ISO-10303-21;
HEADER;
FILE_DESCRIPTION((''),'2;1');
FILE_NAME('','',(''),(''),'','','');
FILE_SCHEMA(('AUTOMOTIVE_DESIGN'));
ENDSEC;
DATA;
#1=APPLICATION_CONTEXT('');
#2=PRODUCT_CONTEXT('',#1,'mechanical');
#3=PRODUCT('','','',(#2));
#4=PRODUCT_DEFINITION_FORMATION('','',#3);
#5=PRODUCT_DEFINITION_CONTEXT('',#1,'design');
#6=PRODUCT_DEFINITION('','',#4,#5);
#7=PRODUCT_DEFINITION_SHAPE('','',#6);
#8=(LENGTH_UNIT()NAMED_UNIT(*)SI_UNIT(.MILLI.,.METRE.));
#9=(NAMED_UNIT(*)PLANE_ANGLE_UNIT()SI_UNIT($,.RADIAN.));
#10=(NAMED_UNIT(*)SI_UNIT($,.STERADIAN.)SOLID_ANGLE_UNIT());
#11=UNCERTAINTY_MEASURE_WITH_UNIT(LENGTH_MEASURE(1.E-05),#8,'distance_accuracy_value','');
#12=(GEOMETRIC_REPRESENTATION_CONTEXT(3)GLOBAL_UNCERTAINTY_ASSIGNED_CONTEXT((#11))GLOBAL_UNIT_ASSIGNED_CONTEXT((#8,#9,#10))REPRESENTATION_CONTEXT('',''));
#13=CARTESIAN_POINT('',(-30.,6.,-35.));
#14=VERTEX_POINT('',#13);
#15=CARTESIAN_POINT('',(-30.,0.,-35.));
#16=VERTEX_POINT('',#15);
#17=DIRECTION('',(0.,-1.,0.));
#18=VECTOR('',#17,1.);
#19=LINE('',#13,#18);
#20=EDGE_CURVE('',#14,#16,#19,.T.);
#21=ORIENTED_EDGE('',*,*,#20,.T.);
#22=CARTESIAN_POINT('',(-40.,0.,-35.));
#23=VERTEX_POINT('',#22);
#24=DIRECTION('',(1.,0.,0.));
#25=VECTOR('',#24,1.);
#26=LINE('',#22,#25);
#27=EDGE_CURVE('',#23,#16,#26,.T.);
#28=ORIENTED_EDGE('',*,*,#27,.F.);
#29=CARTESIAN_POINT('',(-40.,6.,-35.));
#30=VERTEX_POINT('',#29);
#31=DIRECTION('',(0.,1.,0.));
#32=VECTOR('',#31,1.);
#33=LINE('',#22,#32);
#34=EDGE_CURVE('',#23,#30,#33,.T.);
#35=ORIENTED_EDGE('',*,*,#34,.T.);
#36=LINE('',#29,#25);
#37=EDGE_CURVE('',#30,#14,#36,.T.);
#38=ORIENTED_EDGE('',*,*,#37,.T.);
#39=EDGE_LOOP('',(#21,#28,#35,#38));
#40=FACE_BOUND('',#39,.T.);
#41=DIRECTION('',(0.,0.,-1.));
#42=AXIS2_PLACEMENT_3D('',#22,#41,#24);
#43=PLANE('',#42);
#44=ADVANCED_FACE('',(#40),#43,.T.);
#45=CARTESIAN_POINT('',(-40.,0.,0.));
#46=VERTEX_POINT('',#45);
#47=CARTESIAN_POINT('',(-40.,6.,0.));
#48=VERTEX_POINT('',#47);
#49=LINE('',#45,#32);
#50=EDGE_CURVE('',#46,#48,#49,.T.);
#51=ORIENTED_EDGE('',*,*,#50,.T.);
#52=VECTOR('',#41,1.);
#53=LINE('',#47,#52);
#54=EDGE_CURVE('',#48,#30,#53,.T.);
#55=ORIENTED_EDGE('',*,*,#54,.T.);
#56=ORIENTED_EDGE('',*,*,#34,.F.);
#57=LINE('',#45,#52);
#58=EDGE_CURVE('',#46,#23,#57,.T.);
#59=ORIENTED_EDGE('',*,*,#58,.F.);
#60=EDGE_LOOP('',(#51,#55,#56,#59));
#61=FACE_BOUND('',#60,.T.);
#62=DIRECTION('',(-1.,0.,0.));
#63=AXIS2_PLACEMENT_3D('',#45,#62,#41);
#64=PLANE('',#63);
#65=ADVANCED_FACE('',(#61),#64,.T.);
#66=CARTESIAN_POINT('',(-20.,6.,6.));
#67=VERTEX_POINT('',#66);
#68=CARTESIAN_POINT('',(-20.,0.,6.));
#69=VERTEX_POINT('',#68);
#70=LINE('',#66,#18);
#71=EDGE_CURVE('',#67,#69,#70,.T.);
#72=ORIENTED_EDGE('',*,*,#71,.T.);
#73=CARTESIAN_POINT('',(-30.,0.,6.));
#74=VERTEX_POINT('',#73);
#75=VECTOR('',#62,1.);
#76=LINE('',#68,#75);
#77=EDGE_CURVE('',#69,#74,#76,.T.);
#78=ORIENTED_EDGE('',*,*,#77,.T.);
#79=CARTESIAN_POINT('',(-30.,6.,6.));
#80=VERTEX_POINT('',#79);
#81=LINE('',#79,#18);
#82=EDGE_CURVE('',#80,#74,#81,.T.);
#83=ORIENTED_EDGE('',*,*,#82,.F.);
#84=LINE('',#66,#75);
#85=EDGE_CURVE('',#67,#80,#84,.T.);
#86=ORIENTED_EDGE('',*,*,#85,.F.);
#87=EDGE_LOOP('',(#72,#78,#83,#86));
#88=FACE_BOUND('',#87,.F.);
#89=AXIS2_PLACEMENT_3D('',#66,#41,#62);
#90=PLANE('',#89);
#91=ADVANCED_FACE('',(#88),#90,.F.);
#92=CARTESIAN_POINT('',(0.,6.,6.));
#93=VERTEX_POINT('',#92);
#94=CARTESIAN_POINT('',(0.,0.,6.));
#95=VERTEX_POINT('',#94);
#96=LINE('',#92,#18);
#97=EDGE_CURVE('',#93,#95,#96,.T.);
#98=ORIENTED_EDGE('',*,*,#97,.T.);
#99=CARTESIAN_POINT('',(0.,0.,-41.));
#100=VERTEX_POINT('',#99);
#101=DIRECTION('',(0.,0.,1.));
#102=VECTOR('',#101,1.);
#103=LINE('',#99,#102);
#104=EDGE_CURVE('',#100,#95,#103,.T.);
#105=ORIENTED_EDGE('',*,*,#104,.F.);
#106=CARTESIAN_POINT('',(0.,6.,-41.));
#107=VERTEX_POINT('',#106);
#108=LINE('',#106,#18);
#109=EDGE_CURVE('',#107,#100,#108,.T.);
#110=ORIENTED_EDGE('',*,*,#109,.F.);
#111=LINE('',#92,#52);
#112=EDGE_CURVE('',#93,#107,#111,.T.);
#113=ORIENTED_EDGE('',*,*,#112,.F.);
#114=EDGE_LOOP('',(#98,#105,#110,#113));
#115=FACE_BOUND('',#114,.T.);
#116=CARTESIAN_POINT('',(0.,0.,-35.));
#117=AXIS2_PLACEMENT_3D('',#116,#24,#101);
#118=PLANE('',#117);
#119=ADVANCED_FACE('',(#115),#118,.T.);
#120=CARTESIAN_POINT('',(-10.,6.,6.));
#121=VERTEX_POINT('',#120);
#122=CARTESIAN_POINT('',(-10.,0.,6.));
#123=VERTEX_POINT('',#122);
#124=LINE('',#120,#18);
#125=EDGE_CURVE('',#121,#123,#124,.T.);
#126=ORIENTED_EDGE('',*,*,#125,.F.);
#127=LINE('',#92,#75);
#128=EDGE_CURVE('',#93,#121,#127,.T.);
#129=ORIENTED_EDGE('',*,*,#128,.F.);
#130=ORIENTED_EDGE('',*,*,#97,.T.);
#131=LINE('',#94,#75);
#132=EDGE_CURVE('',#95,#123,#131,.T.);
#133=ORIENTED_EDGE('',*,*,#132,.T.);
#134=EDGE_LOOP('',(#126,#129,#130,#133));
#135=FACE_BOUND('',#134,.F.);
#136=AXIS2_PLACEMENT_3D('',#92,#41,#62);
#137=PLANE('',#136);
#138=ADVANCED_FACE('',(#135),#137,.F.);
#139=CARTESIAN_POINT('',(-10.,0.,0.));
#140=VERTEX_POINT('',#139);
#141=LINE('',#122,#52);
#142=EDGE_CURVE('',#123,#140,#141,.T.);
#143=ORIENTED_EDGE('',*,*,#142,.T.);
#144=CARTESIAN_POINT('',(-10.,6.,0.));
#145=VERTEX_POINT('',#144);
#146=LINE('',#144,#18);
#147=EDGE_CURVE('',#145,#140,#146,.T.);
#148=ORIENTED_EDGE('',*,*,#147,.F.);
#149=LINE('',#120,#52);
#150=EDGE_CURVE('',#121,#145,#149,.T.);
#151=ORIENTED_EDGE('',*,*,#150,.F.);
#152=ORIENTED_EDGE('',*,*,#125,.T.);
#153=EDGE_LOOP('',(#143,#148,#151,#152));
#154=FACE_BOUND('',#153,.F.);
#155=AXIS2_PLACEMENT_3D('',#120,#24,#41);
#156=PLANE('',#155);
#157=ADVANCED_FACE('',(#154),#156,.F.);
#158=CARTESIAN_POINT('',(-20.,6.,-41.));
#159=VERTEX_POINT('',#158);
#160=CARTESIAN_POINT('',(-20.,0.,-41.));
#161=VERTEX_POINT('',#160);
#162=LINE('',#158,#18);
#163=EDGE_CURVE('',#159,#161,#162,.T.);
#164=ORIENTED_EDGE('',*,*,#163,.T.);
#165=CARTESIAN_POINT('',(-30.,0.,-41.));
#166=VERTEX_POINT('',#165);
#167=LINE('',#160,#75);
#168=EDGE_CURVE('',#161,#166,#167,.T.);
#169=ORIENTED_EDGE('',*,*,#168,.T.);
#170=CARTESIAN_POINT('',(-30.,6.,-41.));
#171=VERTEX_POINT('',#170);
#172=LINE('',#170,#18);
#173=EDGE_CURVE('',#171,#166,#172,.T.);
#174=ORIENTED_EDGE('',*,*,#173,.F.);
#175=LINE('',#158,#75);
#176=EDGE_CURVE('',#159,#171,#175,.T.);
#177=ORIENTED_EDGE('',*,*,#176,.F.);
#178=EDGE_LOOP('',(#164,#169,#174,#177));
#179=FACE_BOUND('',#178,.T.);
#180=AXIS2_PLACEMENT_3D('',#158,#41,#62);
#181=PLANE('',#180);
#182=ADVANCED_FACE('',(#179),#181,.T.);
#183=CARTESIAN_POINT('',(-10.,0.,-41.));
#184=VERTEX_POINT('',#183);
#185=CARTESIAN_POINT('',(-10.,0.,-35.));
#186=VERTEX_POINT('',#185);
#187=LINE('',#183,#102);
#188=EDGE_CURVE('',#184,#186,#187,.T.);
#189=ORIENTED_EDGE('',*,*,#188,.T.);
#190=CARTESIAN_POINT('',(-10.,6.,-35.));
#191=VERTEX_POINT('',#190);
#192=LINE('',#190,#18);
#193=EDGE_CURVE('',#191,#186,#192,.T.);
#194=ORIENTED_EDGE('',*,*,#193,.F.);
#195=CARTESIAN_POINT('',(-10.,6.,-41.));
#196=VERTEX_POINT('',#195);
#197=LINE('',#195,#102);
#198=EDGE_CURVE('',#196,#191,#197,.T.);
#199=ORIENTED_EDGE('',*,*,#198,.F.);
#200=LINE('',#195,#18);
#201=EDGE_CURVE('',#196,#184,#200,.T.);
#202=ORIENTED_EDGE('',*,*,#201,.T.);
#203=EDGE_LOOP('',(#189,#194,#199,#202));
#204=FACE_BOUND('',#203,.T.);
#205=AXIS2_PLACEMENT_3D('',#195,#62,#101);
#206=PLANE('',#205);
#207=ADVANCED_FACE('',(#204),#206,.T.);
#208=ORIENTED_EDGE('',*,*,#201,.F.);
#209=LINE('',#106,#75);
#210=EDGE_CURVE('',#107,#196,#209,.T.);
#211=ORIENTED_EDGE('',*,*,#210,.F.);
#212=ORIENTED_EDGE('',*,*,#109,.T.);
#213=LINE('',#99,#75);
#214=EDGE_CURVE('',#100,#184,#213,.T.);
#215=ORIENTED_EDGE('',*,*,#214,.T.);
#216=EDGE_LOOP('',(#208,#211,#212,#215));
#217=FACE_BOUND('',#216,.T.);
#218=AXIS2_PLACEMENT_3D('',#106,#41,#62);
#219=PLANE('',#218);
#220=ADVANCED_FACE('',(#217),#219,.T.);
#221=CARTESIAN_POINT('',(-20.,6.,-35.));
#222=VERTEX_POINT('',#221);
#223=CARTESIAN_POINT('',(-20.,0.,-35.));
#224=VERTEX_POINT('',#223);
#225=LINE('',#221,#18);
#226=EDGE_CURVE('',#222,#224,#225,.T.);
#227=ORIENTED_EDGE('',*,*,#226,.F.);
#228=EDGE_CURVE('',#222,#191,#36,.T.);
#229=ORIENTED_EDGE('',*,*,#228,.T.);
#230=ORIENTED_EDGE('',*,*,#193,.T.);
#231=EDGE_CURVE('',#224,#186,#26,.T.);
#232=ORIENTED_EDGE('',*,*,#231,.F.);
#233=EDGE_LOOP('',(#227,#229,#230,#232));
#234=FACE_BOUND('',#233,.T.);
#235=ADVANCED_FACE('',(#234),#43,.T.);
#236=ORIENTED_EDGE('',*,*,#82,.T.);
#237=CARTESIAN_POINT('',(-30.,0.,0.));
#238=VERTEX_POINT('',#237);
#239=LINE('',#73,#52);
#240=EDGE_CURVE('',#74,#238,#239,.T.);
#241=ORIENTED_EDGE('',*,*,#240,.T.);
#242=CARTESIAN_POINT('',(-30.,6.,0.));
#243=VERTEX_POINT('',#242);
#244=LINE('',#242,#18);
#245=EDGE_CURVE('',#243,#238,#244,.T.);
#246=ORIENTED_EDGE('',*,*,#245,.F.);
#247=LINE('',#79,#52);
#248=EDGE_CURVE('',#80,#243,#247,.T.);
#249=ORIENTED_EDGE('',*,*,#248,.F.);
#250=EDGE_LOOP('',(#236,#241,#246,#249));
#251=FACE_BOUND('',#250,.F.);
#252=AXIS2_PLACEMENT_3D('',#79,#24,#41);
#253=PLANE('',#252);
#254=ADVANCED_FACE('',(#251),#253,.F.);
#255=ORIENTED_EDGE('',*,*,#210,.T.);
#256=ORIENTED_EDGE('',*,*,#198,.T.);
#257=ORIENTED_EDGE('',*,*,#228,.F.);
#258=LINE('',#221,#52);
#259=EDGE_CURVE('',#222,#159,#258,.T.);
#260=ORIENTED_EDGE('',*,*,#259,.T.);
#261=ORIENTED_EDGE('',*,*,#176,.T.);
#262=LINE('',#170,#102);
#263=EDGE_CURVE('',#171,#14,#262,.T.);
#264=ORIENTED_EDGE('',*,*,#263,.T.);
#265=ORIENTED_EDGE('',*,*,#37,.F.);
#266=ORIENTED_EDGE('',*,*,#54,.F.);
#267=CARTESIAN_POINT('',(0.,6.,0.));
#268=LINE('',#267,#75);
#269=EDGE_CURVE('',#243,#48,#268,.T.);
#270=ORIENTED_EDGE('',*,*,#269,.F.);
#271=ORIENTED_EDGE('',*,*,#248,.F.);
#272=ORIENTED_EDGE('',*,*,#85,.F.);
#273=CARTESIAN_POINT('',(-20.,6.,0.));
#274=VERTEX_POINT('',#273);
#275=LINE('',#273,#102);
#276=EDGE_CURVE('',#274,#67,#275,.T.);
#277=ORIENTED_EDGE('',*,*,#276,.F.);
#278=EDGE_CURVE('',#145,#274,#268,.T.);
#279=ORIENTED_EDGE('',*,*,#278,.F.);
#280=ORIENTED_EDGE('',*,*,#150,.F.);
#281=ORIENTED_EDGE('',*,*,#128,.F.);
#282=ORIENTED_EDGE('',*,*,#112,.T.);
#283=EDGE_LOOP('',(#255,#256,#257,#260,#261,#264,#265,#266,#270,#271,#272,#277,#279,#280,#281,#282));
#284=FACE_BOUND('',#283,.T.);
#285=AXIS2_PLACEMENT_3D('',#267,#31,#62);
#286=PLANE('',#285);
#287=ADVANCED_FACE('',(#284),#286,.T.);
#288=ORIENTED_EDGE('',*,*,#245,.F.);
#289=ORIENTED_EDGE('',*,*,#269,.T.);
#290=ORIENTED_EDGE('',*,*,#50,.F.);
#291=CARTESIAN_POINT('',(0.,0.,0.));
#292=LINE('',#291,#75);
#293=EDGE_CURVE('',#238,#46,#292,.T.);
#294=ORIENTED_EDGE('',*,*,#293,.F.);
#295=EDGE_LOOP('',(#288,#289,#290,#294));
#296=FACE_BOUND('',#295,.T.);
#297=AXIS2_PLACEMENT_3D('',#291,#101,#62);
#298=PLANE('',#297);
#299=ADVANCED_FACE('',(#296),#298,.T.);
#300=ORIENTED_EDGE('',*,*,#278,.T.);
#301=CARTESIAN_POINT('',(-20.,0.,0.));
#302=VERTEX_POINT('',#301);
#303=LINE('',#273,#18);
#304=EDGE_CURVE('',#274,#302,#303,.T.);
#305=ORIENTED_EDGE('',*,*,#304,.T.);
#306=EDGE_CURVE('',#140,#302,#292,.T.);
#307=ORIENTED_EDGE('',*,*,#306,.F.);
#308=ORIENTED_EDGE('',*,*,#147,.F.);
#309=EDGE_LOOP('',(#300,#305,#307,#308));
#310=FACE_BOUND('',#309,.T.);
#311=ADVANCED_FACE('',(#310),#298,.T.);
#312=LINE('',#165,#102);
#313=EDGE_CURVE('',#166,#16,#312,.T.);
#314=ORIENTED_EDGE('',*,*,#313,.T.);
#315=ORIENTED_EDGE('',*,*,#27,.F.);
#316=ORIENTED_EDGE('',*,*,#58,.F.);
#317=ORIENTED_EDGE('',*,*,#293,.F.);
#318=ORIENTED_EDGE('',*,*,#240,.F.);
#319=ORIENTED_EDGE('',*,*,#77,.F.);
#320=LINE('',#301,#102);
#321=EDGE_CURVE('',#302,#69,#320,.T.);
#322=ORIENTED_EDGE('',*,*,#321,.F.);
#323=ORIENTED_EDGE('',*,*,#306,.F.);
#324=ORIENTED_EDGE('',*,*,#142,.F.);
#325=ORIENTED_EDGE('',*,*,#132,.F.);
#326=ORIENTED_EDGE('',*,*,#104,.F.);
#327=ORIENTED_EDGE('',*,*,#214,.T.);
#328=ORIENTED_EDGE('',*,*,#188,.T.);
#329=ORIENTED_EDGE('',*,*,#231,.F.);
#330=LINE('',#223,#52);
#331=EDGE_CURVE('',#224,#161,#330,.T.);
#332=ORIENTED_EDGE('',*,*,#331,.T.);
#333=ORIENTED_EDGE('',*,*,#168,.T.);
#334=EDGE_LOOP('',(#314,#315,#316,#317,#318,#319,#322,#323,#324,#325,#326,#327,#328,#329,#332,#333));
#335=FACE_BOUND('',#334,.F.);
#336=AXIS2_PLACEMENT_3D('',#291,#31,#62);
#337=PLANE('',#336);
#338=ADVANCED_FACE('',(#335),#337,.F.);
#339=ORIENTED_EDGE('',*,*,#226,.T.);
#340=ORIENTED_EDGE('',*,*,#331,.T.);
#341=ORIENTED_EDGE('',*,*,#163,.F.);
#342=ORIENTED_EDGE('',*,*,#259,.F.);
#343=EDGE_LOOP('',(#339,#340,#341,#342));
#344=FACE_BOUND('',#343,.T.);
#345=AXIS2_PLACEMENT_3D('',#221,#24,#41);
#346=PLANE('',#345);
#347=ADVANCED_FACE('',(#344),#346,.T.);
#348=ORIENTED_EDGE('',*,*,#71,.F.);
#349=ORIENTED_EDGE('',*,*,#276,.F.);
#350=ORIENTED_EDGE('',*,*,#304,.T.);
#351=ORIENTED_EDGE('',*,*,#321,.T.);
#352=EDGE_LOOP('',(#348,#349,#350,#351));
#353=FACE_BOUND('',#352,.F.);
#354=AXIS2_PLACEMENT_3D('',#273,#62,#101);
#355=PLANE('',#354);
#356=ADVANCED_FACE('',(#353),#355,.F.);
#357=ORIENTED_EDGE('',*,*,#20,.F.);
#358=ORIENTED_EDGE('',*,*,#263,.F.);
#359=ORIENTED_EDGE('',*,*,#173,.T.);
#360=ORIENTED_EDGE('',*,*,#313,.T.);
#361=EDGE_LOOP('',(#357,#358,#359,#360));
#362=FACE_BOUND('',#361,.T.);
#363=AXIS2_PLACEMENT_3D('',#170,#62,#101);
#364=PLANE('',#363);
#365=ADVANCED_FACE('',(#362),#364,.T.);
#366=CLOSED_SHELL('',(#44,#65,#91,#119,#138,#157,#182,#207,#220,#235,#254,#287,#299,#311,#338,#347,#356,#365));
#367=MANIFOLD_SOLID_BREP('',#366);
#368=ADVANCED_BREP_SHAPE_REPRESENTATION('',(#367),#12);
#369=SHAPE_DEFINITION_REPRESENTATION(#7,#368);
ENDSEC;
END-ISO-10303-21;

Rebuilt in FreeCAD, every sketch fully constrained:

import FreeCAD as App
import Part
import Sketcher
from FreeCAD import Vector
Q = App.Units.Quantity


def add_polygon(sketch, points):
    """Adds a closed chain of lines whose ends are joined by coincident constraints."""
    first, n = sketch.GeometryCount, len(points)
    for a, b in zip(points, points[1:] + points[:1]):
        sketch.addGeometry(Part.LineSegment(App.Vector(*a, 0), App.Vector(*b, 0)), False)
    for i in range(n):
        sketch.addConstraint(Sketcher.Constraint("Coincident", first + i, 2, first + (i + 1) % n, 1))

doc = App.newDocument("Part")
body = doc.addObject("PartDesign::Body", "Body")

# Sketch on XZ plane
sketch1 = body.newObject("Sketcher::SketchObject", "Sketch")
sketch1.AttachmentSupport = (doc.getObject("XZ_Plane"), [""])
sketch1.MapMode = "FlatFace"
add_polygon(sketch1, [(-40, 0), (0, 0), (0, -35), (-40, -35)])  # lines 0-3
sketch1.addConstraint([
    Sketcher.Constraint("Horizontal", 0),
    Sketcher.Constraint("Vertical", 1),
    Sketcher.Constraint("Horizontal", 2),
    Sketcher.Constraint("Vertical", 3),
    Sketcher.Constraint("Coincident", 0, 2, -1, 1),
    Sketcher.Constraint("DistanceX", 0, 1, 0, 2, Q("40 mm")),
    Sketcher.Constraint("DistanceY", 1, 2, 1, 1, Q("35 mm")),
])
pad1 = body.newObject("PartDesign::Pad", "Pad")
pad1.Profile = sketch1
pad1.Length = 6
pad1.Reversed = True

# Sketch on XZ plane
sketch2 = body.newObject("Sketcher::SketchObject", "Sketch001")
sketch2.AttachmentSupport = (doc.getObject("XZ_Plane"), [""])
sketch2.MapMode = "FlatFace"
sketch2.AttachmentOffset = App.Placement(Vector(0, 0, -6), App.Rotation())
add_polygon(sketch2, [(-20, 0), (-30, 0), (-30, 6), (-20, 6)])  # lines 0-3
add_polygon(sketch2, [(-30, -41), (-30, -35), (-20, -35), (-20, -41)])  # lines 4-7
sketch2.addConstraint([
    Sketcher.Constraint("Horizontal", 0),
    Sketcher.Constraint("Vertical", 1),
    Sketcher.Constraint("Horizontal", 2),
    Sketcher.Constraint("Vertical", 3),
    Sketcher.Constraint("Vertical", 4),
    Sketcher.Constraint("Horizontal", 5),
    Sketcher.Constraint("Vertical", 6),
    Sketcher.Constraint("Horizontal", 7),
    Sketcher.Constraint("PointOnObject", 0, 2, -1),
    Sketcher.Constraint("Vertical", 1, 2, 4, 2),
    Sketcher.Constraint("Vertical", 3, 2, 5, 2),
    Sketcher.Constraint("Equal", 3, 4),
    Sketcher.Constraint("DistanceX", 0, 2, 0, 1, Q("10 mm")),
    Sketcher.Constraint("DistanceY", 1, 1, 1, 2, Q("6 mm")),
    Sketcher.Constraint("DistanceX", 0, 2, -1, 1, Q("30 mm")),
    Sketcher.Constraint("DistanceY", 4, 2, -1, 1, Q("35 mm")),
])
pad2 = body.newObject("PartDesign::Pad", "Pad001")
pad2.Profile = sketch2
pad2.Length = 6
doc.recompute()

linearpattern = body.newObject("PartDesign::LinearPattern", "LinearPattern")
linearpattern.Originals = [pad2]
linearpattern.Direction = (doc.getObject("X_Axis"), [""])
linearpattern.Mode = "offset"
linearpattern.Offset = 20
linearpattern.Occurrences = 2
body.Tip = linearpattern

doc.recompute()
